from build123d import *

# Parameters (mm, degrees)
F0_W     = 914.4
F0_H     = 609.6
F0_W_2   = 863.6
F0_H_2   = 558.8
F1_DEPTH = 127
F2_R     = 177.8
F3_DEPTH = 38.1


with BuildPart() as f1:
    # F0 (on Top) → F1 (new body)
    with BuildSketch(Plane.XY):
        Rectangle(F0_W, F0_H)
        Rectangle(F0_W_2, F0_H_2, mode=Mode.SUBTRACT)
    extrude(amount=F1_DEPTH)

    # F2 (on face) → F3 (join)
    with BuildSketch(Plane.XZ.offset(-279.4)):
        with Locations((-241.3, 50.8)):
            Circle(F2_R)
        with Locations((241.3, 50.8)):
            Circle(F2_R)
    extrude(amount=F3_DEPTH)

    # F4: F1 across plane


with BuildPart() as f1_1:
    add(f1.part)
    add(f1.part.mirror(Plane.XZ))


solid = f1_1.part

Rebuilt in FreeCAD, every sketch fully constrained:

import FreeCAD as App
import Part
import Sketcher
from FreeCAD import Vector
Q = App.Units.Quantity


def add_polygon(sketch, points):
    """Adds a closed chain of lines whose ends are joined by coincident constraints."""
    first, n = sketch.GeometryCount, len(points)
    for a, b in zip(points, points[1:] + points[:1]):
        sketch.addGeometry(Part.LineSegment(App.Vector(*a, 0), App.Vector(*b, 0)), False)
    for i in range(n):
        sketch.addConstraint(Sketcher.Constraint("Coincident", first + i, 2, first + (i + 1) % n, 1))

doc = App.newDocument("Part")
body = doc.addObject("PartDesign::Body", "Body")

sketch1 = body.newObject("Sketcher::SketchObject", "Sketch")
sketch1.AttachmentSupport = (doc.getObject("XY_Plane"), [""])
sketch1.MapMode = "FlatFace"
add_polygon(sketch1, [(-457, 305), (-457, -305), (457, -305), (457, 305)])
add_polygon(sketch1, [(432, -279), (-432, -279), (-432, 279), (432, 279)])
sketch1.addConstraint(Sketcher.Constraint("Vertical", 0))
sketch1.addConstraint(Sketcher.Constraint("Horizontal", 1))
sketch1.addConstraint(Sketcher.Constraint("Vertical", 2))
sketch1.addConstraint(Sketcher.Constraint("Horizontal", 3))
sketch1.addConstraint(Sketcher.Constraint("Horizontal", 4))
sketch1.addConstraint(Sketcher.Constraint("Vertical", 5))
sketch1.addConstraint(Sketcher.Constraint("Horizontal", 6))
sketch1.addConstraint(Sketcher.Constraint("Vertical", 7))
sketch1.addConstraint(Sketcher.Constraint("Symmetric", 0, 2, 2, 2, -1, 1))
sketch1.addConstraint(Sketcher.Constraint("Symmetric", 4, 2, 6, 2, -1, 1))
sketch1.addConstraint(Sketcher.Constraint("DistanceX", 1, 1, 1, 2, Q("36 in")))
sketch1.addConstraint(Sketcher.Constraint("DistanceX", 4, 2, 4, 1, Q("34 in")))
sketch1.addConstraint(Sketcher.Constraint("DistanceY", 0, 2, 0, 1, Q("24 in")))
sketch1.addConstraint(Sketcher.Constraint("DistanceY", 5, 1, 5, 2, Q("22 in")))
pad1 = body.newObject("PartDesign::Pad", "Pad")
pad1.Profile = sketch1
pad1.Length = Q("5 in")

sketch2 = body.newObject("Sketcher::SketchObject", "Sketch001")
sketch2.AttachmentSupport = (doc.getObject("XZ_Plane"), [""])
sketch2.MapMode = "FlatFace"
sketch2.AttachmentOffset = App.Placement(Vector(0, 0, -11 * 25.4), App.Rotation())
sketch2.addGeometry(Part.Circle(Vector(-241, 51, 0), Vector(0, 0, 1), 178), False)
sketch2.addGeometry(Part.Circle(Vector(241, 51, 0), Vector(0, 0, 1), 178), False)
sketch2.addConstraint(Sketcher.Constraint("Equal", 0, 1))
sketch2.addConstraint(Sketcher.Constraint("Symmetric", 0, 3, 1, 3, -2))
sketch2.addConstraint(Sketcher.Constraint("Diameter", 0, Q("14 in")))
sketch2.addConstraint(Sketcher.Constraint("DistanceY", -1, 1, 0, 3, Q("2 in")))
sketch2.addConstraint(Sketcher.Constraint("DistanceX", 0, 3, 1, 3, Q("19 in")))
pad2 = body.newObject("PartDesign::Pad", "Pad001")
pad2.Profile = sketch2
pad2.Length = Q("1.5 in")
body2 = doc.addObject("PartDesign::Body", "Body001")
doc.recompute()

body2.BaseFeature = body
doc.recompute()

mirroring = doc.addObject("Part::Mirroring", "Mirroring")
mirroring.Source = body
mirroring.Base = Vector(0, 0, 0)
mirroring.Normal = Vector(0, -1, 0)
body3 = doc.addObject("PartDesign::Body", "Body002")
body3.BaseFeature = mirroring
boolean = body2.newObject("PartDesign::Boolean", "Boolean")
boolean.Type = "Fuse"
boolean.addObjects([body3])
doc.recompute()
mirroring.Visibility = False

doc.recompute()
